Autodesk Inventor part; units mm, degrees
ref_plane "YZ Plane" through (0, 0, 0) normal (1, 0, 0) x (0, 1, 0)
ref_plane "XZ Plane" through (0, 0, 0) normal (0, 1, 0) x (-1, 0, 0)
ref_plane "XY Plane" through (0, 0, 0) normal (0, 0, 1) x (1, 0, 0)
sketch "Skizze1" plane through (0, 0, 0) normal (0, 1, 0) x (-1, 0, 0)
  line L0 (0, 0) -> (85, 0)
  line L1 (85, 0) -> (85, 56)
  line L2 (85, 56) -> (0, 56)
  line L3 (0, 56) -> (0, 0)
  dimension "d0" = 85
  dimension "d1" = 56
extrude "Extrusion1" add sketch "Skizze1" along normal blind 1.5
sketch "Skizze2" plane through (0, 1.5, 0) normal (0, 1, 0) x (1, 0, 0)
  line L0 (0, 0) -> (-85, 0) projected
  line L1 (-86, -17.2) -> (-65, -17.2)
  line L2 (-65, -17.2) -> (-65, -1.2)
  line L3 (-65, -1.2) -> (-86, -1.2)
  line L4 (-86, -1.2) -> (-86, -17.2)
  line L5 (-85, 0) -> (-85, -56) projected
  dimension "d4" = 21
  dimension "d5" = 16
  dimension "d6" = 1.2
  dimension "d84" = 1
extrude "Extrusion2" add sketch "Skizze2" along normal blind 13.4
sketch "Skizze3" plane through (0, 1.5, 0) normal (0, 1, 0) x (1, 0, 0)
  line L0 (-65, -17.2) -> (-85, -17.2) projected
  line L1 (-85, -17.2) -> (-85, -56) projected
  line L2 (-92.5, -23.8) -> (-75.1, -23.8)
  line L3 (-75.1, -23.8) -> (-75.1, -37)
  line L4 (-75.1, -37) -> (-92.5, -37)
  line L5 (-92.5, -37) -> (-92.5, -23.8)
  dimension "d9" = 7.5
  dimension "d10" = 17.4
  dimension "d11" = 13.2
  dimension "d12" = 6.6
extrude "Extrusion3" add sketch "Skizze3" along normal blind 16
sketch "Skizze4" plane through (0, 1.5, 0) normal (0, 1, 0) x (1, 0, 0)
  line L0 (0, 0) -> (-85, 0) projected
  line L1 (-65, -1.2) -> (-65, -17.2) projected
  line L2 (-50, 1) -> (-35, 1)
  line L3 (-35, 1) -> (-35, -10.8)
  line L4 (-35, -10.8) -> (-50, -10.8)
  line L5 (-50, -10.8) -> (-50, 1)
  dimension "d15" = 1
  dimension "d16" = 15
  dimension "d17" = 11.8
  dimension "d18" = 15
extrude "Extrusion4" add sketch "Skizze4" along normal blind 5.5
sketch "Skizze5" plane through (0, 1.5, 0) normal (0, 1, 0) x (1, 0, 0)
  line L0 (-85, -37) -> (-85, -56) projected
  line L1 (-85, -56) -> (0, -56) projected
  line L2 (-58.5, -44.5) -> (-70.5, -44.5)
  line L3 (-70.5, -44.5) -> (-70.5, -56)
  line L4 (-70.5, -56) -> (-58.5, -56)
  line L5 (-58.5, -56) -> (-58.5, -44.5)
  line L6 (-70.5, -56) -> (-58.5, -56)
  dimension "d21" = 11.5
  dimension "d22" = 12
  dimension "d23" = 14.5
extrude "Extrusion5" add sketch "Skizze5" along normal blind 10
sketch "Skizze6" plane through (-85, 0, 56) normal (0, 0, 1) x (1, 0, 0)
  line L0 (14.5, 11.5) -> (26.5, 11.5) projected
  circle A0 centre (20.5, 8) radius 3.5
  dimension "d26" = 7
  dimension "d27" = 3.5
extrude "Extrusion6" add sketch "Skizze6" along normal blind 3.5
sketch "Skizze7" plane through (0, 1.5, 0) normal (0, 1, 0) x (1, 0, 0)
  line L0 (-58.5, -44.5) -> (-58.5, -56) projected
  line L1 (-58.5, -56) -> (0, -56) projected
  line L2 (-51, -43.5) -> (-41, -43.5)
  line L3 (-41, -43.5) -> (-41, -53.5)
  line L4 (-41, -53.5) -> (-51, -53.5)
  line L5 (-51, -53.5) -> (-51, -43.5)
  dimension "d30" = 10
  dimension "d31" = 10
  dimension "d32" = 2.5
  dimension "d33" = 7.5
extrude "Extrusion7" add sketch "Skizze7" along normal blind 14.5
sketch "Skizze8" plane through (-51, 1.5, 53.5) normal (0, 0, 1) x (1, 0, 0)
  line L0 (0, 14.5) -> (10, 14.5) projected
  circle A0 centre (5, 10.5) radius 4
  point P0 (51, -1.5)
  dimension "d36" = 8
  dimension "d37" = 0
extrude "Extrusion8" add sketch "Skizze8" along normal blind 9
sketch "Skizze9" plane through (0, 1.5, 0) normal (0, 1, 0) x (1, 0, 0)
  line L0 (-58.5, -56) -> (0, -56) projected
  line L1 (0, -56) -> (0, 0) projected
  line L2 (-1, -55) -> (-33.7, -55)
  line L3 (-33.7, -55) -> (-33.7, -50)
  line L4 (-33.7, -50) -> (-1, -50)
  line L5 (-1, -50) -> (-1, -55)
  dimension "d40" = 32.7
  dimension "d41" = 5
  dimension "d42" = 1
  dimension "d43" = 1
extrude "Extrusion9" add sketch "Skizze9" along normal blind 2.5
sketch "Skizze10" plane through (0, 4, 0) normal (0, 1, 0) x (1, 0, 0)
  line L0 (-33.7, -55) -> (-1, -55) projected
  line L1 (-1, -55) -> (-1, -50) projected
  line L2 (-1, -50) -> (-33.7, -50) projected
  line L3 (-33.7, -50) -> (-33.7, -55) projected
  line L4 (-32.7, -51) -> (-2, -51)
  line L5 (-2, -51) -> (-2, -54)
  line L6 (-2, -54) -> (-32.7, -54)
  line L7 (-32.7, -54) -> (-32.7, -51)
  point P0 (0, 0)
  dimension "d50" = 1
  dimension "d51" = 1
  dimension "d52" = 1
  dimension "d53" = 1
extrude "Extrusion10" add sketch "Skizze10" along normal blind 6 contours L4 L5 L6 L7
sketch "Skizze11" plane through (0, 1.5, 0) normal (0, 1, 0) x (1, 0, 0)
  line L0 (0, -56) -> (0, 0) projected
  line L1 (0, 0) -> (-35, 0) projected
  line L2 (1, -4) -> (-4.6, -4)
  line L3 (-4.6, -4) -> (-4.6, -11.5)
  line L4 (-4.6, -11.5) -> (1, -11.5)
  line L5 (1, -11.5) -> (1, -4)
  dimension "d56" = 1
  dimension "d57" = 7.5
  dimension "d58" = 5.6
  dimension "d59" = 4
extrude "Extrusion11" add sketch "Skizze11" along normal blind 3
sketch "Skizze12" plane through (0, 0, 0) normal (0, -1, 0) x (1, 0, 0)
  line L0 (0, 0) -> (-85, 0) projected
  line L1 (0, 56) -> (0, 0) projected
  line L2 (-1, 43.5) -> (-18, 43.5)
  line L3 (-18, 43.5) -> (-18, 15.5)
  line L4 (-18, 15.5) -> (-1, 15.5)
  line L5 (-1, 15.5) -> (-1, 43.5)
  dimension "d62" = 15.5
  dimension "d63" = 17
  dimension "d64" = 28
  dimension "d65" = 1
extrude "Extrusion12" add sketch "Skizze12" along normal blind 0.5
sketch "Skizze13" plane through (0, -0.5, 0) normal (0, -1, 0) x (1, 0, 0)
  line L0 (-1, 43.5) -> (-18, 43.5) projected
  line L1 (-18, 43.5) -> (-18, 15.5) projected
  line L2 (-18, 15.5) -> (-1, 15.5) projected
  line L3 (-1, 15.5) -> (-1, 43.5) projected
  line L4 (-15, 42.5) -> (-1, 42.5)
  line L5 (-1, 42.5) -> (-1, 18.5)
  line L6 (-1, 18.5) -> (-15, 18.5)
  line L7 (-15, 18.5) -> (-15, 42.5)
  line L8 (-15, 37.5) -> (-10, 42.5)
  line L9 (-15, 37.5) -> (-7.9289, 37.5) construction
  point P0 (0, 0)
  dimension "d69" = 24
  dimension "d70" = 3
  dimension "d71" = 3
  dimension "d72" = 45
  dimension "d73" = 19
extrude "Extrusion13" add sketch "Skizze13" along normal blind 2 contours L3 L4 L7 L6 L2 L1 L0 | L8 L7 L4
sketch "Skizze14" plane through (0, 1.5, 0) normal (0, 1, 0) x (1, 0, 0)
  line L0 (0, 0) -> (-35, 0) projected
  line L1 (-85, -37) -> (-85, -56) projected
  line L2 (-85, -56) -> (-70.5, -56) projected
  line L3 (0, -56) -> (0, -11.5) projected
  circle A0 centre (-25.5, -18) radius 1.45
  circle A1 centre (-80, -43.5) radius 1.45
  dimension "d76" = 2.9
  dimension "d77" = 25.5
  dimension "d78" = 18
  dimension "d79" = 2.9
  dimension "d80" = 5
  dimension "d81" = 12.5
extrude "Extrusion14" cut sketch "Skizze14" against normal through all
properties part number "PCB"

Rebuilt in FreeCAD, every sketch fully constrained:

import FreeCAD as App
import Part
import Sketcher
from FreeCAD import Vector
Q = App.Units.Quantity


def add_polygon(sketch, points):
    """Adds a closed chain of lines whose ends are joined by coincident constraints."""
    first, n = sketch.GeometryCount, len(points)
    for a, b in zip(points, points[1:] + points[:1]):
        sketch.addGeometry(Part.LineSegment(App.Vector(*a, 0), App.Vector(*b, 0)), False)
    for i in range(n):
        sketch.addConstraint(Sketcher.Constraint("Coincident", first + i, 2, first + (i + 1) % n, 1))

doc = App.newDocument("Part")
params = doc.addObject("Spreadsheet::Sheet", "Params")
for row, (alias, value) in enumerate([
    ("sketch1_width", "85 mm"),
    ("sketch1_height", "56 mm"),
    ("pad1_length", "1.5 mm"),
    ("sketch2_width", "21 mm"),
    ("sketch2_height", "16 mm"),
    ("pad2_length", "13.4 mm"),
    ("sketch3_width", "17.4 mm"),
    ("sketch3_height", "13.2 mm"),
    ("pad3_length", "16 mm"),
    ("sketch4_width", "15 mm"),
    ("sketch4_height", "11.8 mm"),
    ("pad4_length", "5.5 mm"),
    ("sketch5_width", "12 mm"),
    ("sketch5_height", "11.5 mm"),
    ("pad5_length", "10 mm"),
    ("sketch6_diameter", "7 mm"),
    ("pad6_length", "3.5 mm"),
    ("sketch7_width", "10 mm"),
    ("pad7_length", "14.5 mm"),
    ("sketch8_diameter", "8 mm"),
    ("pad8_length", "9 mm"),
    ("sketch9_height", "5 mm"),
    ("sketch9_width", "32.7 mm"),
    ("pad9_length", "2.5 mm"),
    ("sketch10_height", "3 mm"),
    ("sketch10_width", "30.7 mm"),
    ("pad10_length", "6 mm"),
    ("sketch11_width", "5.6 mm"),
    ("sketch11_height", "7.5 mm"),
    ("pad11_length", "3 mm"),
    ("sketch12_width", "17 mm"),
    ("sketch12_height", "28 mm"),
    ("pad12_length", "0.5 mm"),
    ("sketch13_height", "3 mm"),
    ("sketch13_height2", "19 mm"),
    ("sketch13_width", "17 mm"),
    ("sketch13_height3", "1 mm"),
    ("pad13_length", "2 mm"),
    ("sketch14_diameter", "2.9 mm"),
], start=1):
    params.set(f"A{row}", alias)
    params.set(f"B{row}", "=" + value)
    params.setAlias(f"B{row}", alias)

body = doc.addObject("PartDesign::Body", "Body")

# Sketch on XZ plane
sketch1 = body.newObject("Sketcher::SketchObject", "Sketch")
sketch1.AttachmentSupport = (doc.getObject("XZ_Plane"), [""])
sketch1.MapMode = "FlatFace"
add_polygon(sketch1, [(0, 56), (0, 0), (-85, 0), (-85, 56)])  # lines 0-3
sketch1.addConstraint([
    Sketcher.Constraint("Vertical", 0),
    Sketcher.Constraint("Horizontal", 1),
    Sketcher.Constraint("Vertical", 2),
    Sketcher.Constraint("Horizontal", 3),
    Sketcher.Constraint("Coincident", 0, 2, -1, 1),
    Sketcher.Constraint("DistanceX", 1, 2, 1, 1, 85.0),
    Sketcher.Constraint("DistanceY", 0, 2, 0, 1, 56.0),
])
sketch1.setExpression("Constraints[9]", "Params.sketch1_width")
sketch1.setExpression("Constraints[10]", "Params.sketch1_height")
pad1 = body.newObject("PartDesign::Pad", "Pad")
pad1.Profile = sketch1
pad1.setExpression("Length", "Params.pad1_length")
pad1.Reversed = True

# Sketch on XZ plane
sketch2 = body.newObject("Sketcher::SketchObject", "Sketch001")
sketch2.AttachmentSupport = (doc.getObject("XZ_Plane"), [""])
sketch2.MapMode = "FlatFace"
sketch2.AttachmentOffset = App.Placement(Vector(0, 0, -1.5), App.Rotation())
add_polygon(sketch2, [(-86, 1.2), (-86, 17.2), (-65, 17.2), (-65, 1.2)])  # lines 0-3
sketch2.addConstraint([
    Sketcher.Constraint("Vertical", 0),
    Sketcher.Constraint("Horizontal", 1),
    Sketcher.Constraint("Vertical", 2),
    Sketcher.Constraint("Horizontal", 3),
    Sketcher.Constraint("DistanceX", 1, 1, 1, 2, 21.0),
    Sketcher.Constraint("DistanceY", 0, 1, 0, 2, 16.0),
    Sketcher.Constraint("DistanceY", -1, 1, 2, 2, 1.2),
    Sketcher.Constraint("DistanceX", 0, 2, -1, 1, 86.0),
])
sketch2.setExpression("Constraints[8]", "Params.sketch2_width")
sketch2.setExpression("Constraints[9]", "Params.sketch2_height")
pad2 = body.newObject("PartDesign::Pad", "Pad001")
pad2.Profile = sketch2
pad2.setExpression("Length", "Params.pad2_length")
pad2.Reversed = True

# Sketch on XZ plane
sketch3 = body.newObject("Sketcher::SketchObject", "Sketch002")
sketch3.AttachmentSupport = (doc.getObject("XZ_Plane"), [""])
sketch3.MapMode = "FlatFace"
sketch3.AttachmentOffset = App.Placement(Vector(0, 0, -1.5), App.Rotation())
add_polygon(sketch3, [(-75.1, 23.8), (-92.5, 23.8), (-92.5, 37), (-75.1, 37)])  # lines 0-3
sketch3.addConstraint([
    Sketcher.Constraint("Horizontal", 0),
    Sketcher.Constraint("Vertical", 1),
    Sketcher.Constraint("Horizontal", 2),
    Sketcher.Constraint("Vertical", 3),
    Sketcher.Constraint("DistanceX", 0, 2, 0, 1, 17.4),
    Sketcher.Constraint("DistanceY", 1, 1, 1, 2, 13.2),
    Sketcher.Constraint("DistanceY", -1, 1, 1, 2, 37.0),
    Sketcher.Constraint("DistanceX", 0, 2, -1, 1, 92.5),
])
sketch3.setExpression("Constraints[8]", "Params.sketch3_width")
sketch3.setExpression("Constraints[9]", "Params.sketch3_height")
pad3 = body.newObject("PartDesign::Pad", "Pad002")
pad3.Profile = sketch3
pad3.setExpression("Length", "Params.pad3_length")
pad3.Reversed = True

# Sketch on XZ plane
sketch4 = body.newObject("Sketcher::SketchObject", "Sketch003")
sketch4.AttachmentSupport = (doc.getObject("XZ_Plane"), [""])
sketch4.MapMode = "FlatFace"
sketch4.AttachmentOffset = App.Placement(Vector(0, 0, -1.5), App.Rotation())
add_polygon(sketch4, [(-35, 10.8), (-35, -1), (-50, -1), (-50, 10.8)])  # lines 0-3
sketch4.addConstraint([
    Sketcher.Constraint("Vertical", 0),
    Sketcher.Constraint("Horizontal", 1),
    Sketcher.Constraint("Vertical", 2),
    Sketcher.Constraint("Horizontal", 3),
    Sketcher.Constraint("DistanceX", 1, 2, 1, 1, 15.0),
    Sketcher.Constraint("DistanceY", 0, 2, 0, 1, 11.8),
    Sketcher.Constraint("DistanceY", 0, 2, -1, 1, 1.0),
    Sketcher.Constraint("DistanceX", 0, 2, -1, 1, 35.0),
])
sketch4.setExpression("Constraints[8]", "Params.sketch4_width")
sketch4.setExpression("Constraints[9]", "Params.sketch4_height")
pad4 = body.newObject("PartDesign::Pad", "Pad003")
pad4.Profile = sketch4
pad4.setExpression("Length", "Params.pad4_length")
pad4.Reversed = True

# Sketch on XZ plane
sketch5 = body.newObject("Sketcher::SketchObject", "Sketch004")
sketch5.AttachmentSupport = (doc.getObject("XZ_Plane"), [""])
sketch5.MapMode = "FlatFace"
sketch5.AttachmentOffset = App.Placement(Vector(0, 0, -1.5), App.Rotation())
add_polygon(sketch5, [(-70.5, 44.5), (-70.5, 56), (-58.5, 56), (-58.5, 44.5)])  # lines 0-3
sketch5.addConstraint([
    Sketcher.Constraint("Vertical", 0),
    Sketcher.Constraint("Horizontal", 1),
    Sketcher.Constraint("Vertical", 2),
    Sketcher.Constraint("Horizontal", 3),
    Sketcher.Constraint("DistanceX", 1, 1, 1, 2, 12.0),
    Sketcher.Constraint("DistanceY", 0, 1, 0, 2, 11.5),
    Sketcher.Constraint("DistanceY", -1, 1, 0, 2, 56.0),
    Sketcher.Constraint("DistanceX", 0, 2, -1, 1, 70.5),
])
sketch5.setExpression("Constraints[8]", "Params.sketch5_width")
sketch5.setExpression("Constraints[9]", "Params.sketch5_height")
pad5 = body.newObject("PartDesign::Pad", "Pad004")
pad5.Profile = sketch5
pad5.setExpression("Length", "Params.pad5_length")
pad5.Reversed = True

# Sketch on XY plane
sketch6 = body.newObject("Sketcher::SketchObject", "Sketch005")
sketch6.AttachmentSupport = (doc.getObject("XY_Plane"), [""])
sketch6.MapMode = "FlatFace"
sketch6.AttachmentOffset = App.Placement(Vector(0, 0, 56), App.Rotation())
sketch6.addGeometry(Part.Circle(Vector(-64.5, 8, 0), Vector(0, 0, 1), 3.5), False)
sketch6.addConstraint([
    Sketcher.Constraint("Diameter", 0, 7.0),
    Sketcher.Constraint("DistanceY", -1, 1, 0, 3, 8.0),
    Sketcher.Constraint("DistanceX", 0, 3, -1, 1, 64.5),
])
sketch6.setExpression("Constraints[0]", "Params.sketch6_diameter")
pad6 = body.newObject("PartDesign::Pad", "Pad005")
pad6.Profile = sketch6
pad6.setExpression("Length", "Params.pad6_length")

# Sketch on XZ plane
sketch7 = body.newObject("Sketcher::SketchObject", "Sketch006")
sketch7.AttachmentSupport = (doc.getObject("XZ_Plane"), [""])
sketch7.MapMode = "FlatFace"
sketch7.AttachmentOffset = App.Placement(Vector(0, 0, -1.5), App.Rotation())
add_polygon(sketch7, [(-41, 43.5), (-51, 43.5), (-51, 53.5), (-41, 53.5)])  # lines 0-3
sketch7.addConstraint([
    Sketcher.Constraint("Horizontal", 0),
    Sketcher.Constraint("Vertical", 1),
    Sketcher.Constraint("Horizontal", 2),
    Sketcher.Constraint("Vertical", 3),
    Sketcher.Constraint("Equal", 2, 1),
    Sketcher.Constraint("DistanceX", 0, 2, 0, 1, 10.0),
    Sketcher.Constraint("DistanceX", 0, 2, -1, 1, 51.0),
    Sketcher.Constraint("DistanceY", -1, 1, 0, 2, 43.5),
])
sketch7.setExpression("Constraints[9]", "Params.sketch7_width")
pad7 = body.newObject("PartDesign::Pad", "Pad006")
pad7.Profile = sketch7
pad7.setExpression("Length", "Params.pad7_length")
pad7.Reversed = True

# Sketch on XY plane
sketch8 = body.newObject("Sketcher::SketchObject", "Sketch007")
sketch8.AttachmentSupport = (doc.getObject("XY_Plane"), [""])
sketch8.MapMode = "FlatFace"
sketch8.AttachmentOffset = App.Placement(Vector(0, 0, 53.5), App.Rotation())
sketch8.addGeometry(Part.Circle(Vector(-46, 12, 0), Vector(0, 0, 1), 4), False)
sketch8.addConstraint([
    Sketcher.Constraint("Diameter", 0, 8.0),
    Sketcher.Constraint("DistanceX", 0, 3, -1, 1, 46.0),
    Sketcher.Constraint("DistanceY", -1, 1, 0, 3, 12.0),
])
sketch8.setExpression("Constraints[0]", "Params.sketch8_diameter")
pad8 = body.newObject("PartDesign::Pad", "Pad007")
pad8.Profile = sketch8
pad8.setExpression("Length", "Params.pad8_length")

# Sketch on XZ plane
sketch9 = body.newObject("Sketcher::SketchObject", "Sketch008")
sketch9.AttachmentSupport = (doc.getObject("XZ_Plane"), [""])
sketch9.MapMode = "FlatFace"
sketch9.AttachmentOffset = App.Placement(Vector(0, 0, -1.5), App.Rotation())
add_polygon(sketch9, [(-33.7, 55), (-1, 55), (-1, 50), (-33.7, 50)])  # lines 0-3
sketch9.addConstraint([
    Sketcher.Constraint("Horizontal", 0),
    Sketcher.Constraint("Vertical", 1),
    Sketcher.Constraint("Horizontal", 2),
    Sketcher.Constraint("Vertical", 3),
    Sketcher.Constraint("DistanceY", 1, 2, 1, 1, 5.0),
    Sketcher.Constraint("DistanceX", 0, 1, 0, 2, 32.7),
    Sketcher.Constraint("DistanceX", 0, 2, -1, 1, 1.0),
    Sketcher.Constraint("DistanceY", -1, 1, 0, 2, 55.0),
])
sketch9.setExpression("Constraints[8]", "Params.sketch9_height")
sketch9.setExpression("Constraints[9]", "Params.sketch9_width")
pad9 = body.newObject("PartDesign::Pad", "Pad008")
pad9.Profile = sketch9
pad9.setExpression("Length", "Params.pad9_length")
pad9.Reversed = True

# Sketch on XZ plane
sketch10 = body.newObject("Sketcher::SketchObject", "Sketch009")
sketch10.AttachmentSupport = (doc.getObject("XZ_Plane"), [""])
sketch10.MapMode = "FlatFace"
sketch10.AttachmentOffset = App.Placement(Vector(0, 0, -4), App.Rotation())
add_polygon(sketch10, [(-2, 51), (-32.7, 51), (-32.7, 54), (-2, 54)])  # lines 0-3
sketch10.addConstraint([
    Sketcher.Constraint("Horizontal", 0),
    Sketcher.Constraint("Vertical", 1),
    Sketcher.Constraint("Horizontal", 2),
    Sketcher.Constraint("Vertical", 3),
    Sketcher.Constraint("DistanceY", 1, 1, 1, 2, 3.0),
    Sketcher.Constraint("DistanceX", 0, 2, 0, 1, 30.7),
    Sketcher.Constraint("DistanceY", -1, 1, 0, 2, 51.0),
    Sketcher.Constraint("DistanceX", 2, 2, -1, 1, 2.0),
])
sketch10.setExpression("Constraints[8]", "Params.sketch10_height")
sketch10.setExpression("Constraints[9]", "Params.sketch10_width")
pad10 = body.newObject("PartDesign::Pad", "Pad009")
pad10.Profile = sketch10
pad10.setExpression("Length", "Params.pad10_length")
pad10.Reversed = True

# Sketch on XZ plane
sketch11 = body.newObject("Sketcher::SketchObject", "Sketch010")
sketch11.AttachmentSupport = (doc.getObject("XZ_Plane"), [""])
sketch11.MapMode = "FlatFace"
sketch11.AttachmentOffset = App.Placement(Vector(0, 0, -1.5), App.Rotation())
add_polygon(sketch11, [(-4.6, 11.5), (1, 11.5), (1, 4), (-4.6, 4)])  # lines 0-3
sketch11.addConstraint([
    Sketcher.Constraint("Horizontal", 0),
    Sketcher.Constraint("Vertical", 1),
    Sketcher.Constraint("Horizontal", 2),
    Sketcher.Constraint("Vertical", 3),
    Sketcher.Constraint("DistanceX", 0, 1, 0, 2, 5.6),
    Sketcher.Constraint("DistanceY", 1, 2, 1, 1, 7.5),
    Sketcher.Constraint("DistanceX", -1, 1, 0, 2, 1.0),
    Sketcher.Constraint("DistanceY", -1, 1, 1, 2, 4.0),
])
sketch11.setExpression("Constraints[8]", "Params.sketch11_width")
sketch11.setExpression("Constraints[9]", "Params.sketch11_height")
pad11 = body.newObject("PartDesign::Pad", "Pad010")
pad11.Profile = sketch11
pad11.setExpression("Length", "Params.pad11_length")
pad11.Reversed = True

# Sketch on XZ plane
sketch12 = body.newObject("Sketcher::SketchObject", "Sketch011")
sketch12.AttachmentSupport = (doc.getObject("XZ_Plane"), [""])
sketch12.MapMode = "FlatFace"
add_polygon(sketch12, [(-1, 15.5), (-1, 43.5), (-18, 43.5), (-18, 15.5)])  # lines 0-3
sketch12.addConstraint([
    Sketcher.Constraint("Vertical", 0),
    Sketcher.Constraint("Horizontal", 1),
    Sketcher.Constraint("Vertical", 2),
    Sketcher.Constraint("Horizontal", 3),
    Sketcher.Constraint("DistanceX", 1, 2, 1, 1, 17.0),
    Sketcher.Constraint("DistanceY", 0, 1, 0, 2, 28.0),
    Sketcher.Constraint("DistanceX", 0, 2, -1, 1, 1.0),
    Sketcher.Constraint("DistanceY", -1, 1, 2, 2, 15.5),
])
sketch12.setExpression("Constraints[8]", "Params.sketch12_width")
sketch12.setExpression("Constraints[9]", "Params.sketch12_height")
pad12 = body.newObject("PartDesign::Pad", "Pad011")
pad12.Profile = sketch12
pad12.setExpression("Length", "Params.pad12_length")

# Sketch on XZ plane
sketch13 = body.newObject("Sketcher::SketchObject", "Sketch012")
sketch13.AttachmentSupport = (doc.getObject("XZ_Plane"), [""])
sketch13.MapMode = "FlatFace"
sketch13.AttachmentOffset = App.Placement(Vector(0, 0, 0.5), App.Rotation())
add_polygon(sketch13, [(-1, 42.5), (-1, 43.5), (-18, 43.5), (-18, 15.5), (-1, 15.5), (-1, 18.5), (-15, 18.5), (-15, 37.5), (-10, 42.5)])  # lines 0-8
sketch13.addConstraint([
    Sketcher.Constraint("Vertical", 0),
    Sketcher.Constraint("Horizontal", 1),
    Sketcher.Constraint("Vertical", 2),
    Sketcher.Constraint("Horizontal", 3),
    Sketcher.Constraint("Vertical", 4),
    Sketcher.Constraint("Horizontal", 5),
    Sketcher.Constraint("Vertical", 6),
    Sketcher.Constraint("Horizontal", 8),
    Sketcher.Constraint("Vertical", 0, 2, 3, 2),
    Sketcher.Constraint("DistanceY", 4, 1, 4, 2, 3.0),
    Sketcher.Constraint("DistanceY", 6, 1, 6, 2, 19.0),
    Sketcher.Constraint("Angle", 7, Q("45 deg")),
    Sketcher.Constraint("DistanceX", 2, 2, 5, 2, 3.0),
    Sketcher.Constraint("DistanceY", 5, 2, 7, 2, 24.0),
    Sketcher.Constraint("DistanceX", 1, 2, 1, 1, 17.0),
    Sketcher.Constraint("DistanceY", 0, 1, 0, 2, 1.0),
    Sketcher.Constraint("DistanceX", 0, 2, -1, 1, 1.0),
    Sketcher.Constraint("DistanceY", -1, 1, 0, 2, 43.5),
])
sketch13.setExpression("Constraints[18]", "Params.sketch13_height")
sketch13.setExpression("Constraints[19]", "Params.sketch13_height2")
sketch13.setExpression("Constraints[23]", "Params.sketch13_width")
sketch13.setExpression("Constraints[24]", "Params.sketch13_height3")
pad13 = body.newObject("PartDesign::Pad", "Pad012")
pad13.Profile = sketch13
pad13.setExpression("Length", "Params.pad13_length")

# Sketch on XZ plane
sketch14 = body.newObject("Sketcher::SketchObject", "Sketch013")
sketch14.AttachmentSupport = (doc.getObject("XZ_Plane"), [""])
sketch14.MapMode = "FlatFace"
sketch14.AttachmentOffset = App.Placement(Vector(0, 0, -1.5), App.Rotation())
sketch14.addGeometry([
    Part.Circle(Vector(-25.5, 18, 0), Vector(0, 0, 1), 1.45),
    Part.Circle(Vector(-80, 43.5, 0), Vector(0, 0, 1), 1.45),
], False)
sketch14.addConstraint([
    Sketcher.Constraint("Equal", 0, 1),
    Sketcher.Constraint("Diameter", 0, 2.9),
    Sketcher.Constraint("DistanceY", -1, 1, 0, 3, 18.0),
    Sketcher.Constraint("DistanceX", 0, 3, -1, 1, 25.5),
    Sketcher.Constraint("DistanceY", 0, 3, 1, 3, 25.5),
    Sketcher.Constraint("DistanceX", 1, 3, -1, 1, 80.0),
])
sketch14.setExpression("Constraints[1]", "Params.sketch14_diameter")
pocket1 = body.newObject("PartDesign::Pocket", "Pocket")
pocket1.Profile = sketch14
pocket1.Type = "ThroughAll"
pocket1.Reversed = True

doc.recompute()
